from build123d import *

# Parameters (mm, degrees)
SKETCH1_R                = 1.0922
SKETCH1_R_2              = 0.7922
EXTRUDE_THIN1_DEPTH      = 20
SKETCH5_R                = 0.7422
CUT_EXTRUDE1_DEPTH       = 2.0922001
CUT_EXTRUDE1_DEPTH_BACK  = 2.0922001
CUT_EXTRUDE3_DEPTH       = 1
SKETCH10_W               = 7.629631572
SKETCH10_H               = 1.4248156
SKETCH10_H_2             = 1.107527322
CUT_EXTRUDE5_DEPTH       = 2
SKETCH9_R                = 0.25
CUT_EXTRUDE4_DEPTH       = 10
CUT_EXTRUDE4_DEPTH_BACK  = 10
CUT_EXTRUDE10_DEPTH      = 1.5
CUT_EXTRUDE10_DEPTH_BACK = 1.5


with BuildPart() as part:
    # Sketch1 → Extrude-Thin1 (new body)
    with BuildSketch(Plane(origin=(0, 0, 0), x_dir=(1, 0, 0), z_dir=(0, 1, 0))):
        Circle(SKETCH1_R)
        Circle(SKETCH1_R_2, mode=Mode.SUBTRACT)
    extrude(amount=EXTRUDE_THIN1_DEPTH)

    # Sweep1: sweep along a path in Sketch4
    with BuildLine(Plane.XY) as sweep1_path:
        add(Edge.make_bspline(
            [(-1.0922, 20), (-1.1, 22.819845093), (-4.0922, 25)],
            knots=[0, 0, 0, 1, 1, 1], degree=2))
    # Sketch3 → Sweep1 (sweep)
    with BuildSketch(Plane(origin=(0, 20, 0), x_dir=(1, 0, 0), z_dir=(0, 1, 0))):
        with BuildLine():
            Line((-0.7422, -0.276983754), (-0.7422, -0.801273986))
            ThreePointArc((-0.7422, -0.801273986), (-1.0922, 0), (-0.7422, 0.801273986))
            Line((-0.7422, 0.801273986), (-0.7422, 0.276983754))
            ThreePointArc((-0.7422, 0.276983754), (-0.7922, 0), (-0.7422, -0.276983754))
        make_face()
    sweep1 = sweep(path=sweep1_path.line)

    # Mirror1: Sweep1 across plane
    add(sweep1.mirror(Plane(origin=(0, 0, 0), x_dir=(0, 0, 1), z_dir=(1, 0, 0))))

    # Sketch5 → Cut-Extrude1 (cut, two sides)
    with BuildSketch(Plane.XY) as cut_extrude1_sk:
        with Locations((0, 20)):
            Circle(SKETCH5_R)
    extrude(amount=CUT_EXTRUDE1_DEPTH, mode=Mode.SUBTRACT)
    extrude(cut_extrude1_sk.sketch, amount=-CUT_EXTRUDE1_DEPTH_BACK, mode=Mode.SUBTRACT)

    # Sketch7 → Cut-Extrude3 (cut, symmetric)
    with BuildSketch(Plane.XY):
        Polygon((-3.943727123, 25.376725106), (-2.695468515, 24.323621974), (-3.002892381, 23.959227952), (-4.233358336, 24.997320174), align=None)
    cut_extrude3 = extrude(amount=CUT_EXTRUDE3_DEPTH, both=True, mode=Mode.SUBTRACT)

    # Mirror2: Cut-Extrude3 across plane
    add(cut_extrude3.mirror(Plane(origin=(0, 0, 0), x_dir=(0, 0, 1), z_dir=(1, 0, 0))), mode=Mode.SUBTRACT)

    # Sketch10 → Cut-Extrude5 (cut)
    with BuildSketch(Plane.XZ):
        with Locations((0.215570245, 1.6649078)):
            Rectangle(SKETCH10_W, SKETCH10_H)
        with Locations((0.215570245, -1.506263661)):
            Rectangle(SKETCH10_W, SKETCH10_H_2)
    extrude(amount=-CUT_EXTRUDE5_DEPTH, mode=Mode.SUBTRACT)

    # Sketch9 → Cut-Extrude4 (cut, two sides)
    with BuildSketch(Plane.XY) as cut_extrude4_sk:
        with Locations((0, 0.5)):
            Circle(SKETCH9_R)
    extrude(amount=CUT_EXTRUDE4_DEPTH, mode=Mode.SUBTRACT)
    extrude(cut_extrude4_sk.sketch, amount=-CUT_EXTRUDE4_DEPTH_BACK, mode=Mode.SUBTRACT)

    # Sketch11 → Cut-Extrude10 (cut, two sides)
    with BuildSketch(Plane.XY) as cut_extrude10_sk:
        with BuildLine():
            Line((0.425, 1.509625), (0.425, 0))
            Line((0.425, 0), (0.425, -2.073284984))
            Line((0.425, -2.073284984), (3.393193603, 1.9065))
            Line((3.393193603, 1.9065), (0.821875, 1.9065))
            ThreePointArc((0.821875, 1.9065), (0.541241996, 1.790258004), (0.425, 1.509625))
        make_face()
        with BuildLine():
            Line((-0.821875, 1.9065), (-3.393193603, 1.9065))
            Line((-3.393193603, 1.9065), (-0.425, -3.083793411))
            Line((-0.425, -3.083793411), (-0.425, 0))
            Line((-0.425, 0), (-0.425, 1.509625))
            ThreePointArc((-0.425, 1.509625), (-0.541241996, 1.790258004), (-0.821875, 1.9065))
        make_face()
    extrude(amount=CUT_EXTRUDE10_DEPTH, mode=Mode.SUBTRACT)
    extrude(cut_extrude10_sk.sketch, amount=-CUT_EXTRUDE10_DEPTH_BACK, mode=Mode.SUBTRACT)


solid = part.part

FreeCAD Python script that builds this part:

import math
import FreeCAD as App
import Part
import Sketcher

V = App.Vector
Q = App.Units.Quantity

doc = App.newDocument("Part")
body = doc.addObject("PartDesign::Body", "Body")

# Sketch on XZ plane
sketch1 = doc.addObject("Sketcher::SketchObject", "Sketch")
body.addObject(sketch1)
sketch1.AttachmentSupport = (doc.XZ_Plane, [""])
sketch1.MapMode = "FlatFace"
sketch1.addGeometry([
    Part.Circle(V(0, 0, 0), V(0, 0, 1), 1.1),
    Part.Circle(V(0, 0, 0), V(0, 0, 1), 0.8),
], False)
sketch1.addConstraint([
    Sketcher.Constraint("Coincident", 0, 3, -1, 1),
    Sketcher.Constraint("Coincident", 1, 3, -1, 1),
    Sketcher.Constraint("Diameter", 0, Q("2.1844 mm")),
    Sketcher.Constraint("Diameter", 1, Q("1.5844 mm")),
])
pad1 = doc.addObject("PartDesign::Pad", "Pad")
body.addObject(pad1)
pad1.Profile = sketch1
pad1.Length = 20
pad1.Reversed = True

# Sketch on XZ plane
sketch2 = doc.addObject("Sketcher::SketchObject", "Sketch001")
body.addObject(sketch2)
sketch2.AttachmentSupport = (doc.XZ_Plane, [""])
sketch2.MapMode = "FlatFace"
sketch2.AttachmentOffset = App.Placement(V(0, 0, -20), App.Rotation())
sketch2.addGeometry([
    Part.LineSegment(V(-0.7, 0.8, 0), V(-0.7, 0.3, 0)),
    Part.ArcOfCircle(Part.Circle(V(0, 0, 0), V(0, 0, 1), 0.8), math.radians(160), math.radians(200)),
    Part.LineSegment(V(-0.7, -0.3, 0), V(-0.7, -0.8, 0)),
    Part.ArcOfCircle(Part.Circle(V(0, 0, 0), V(0, 0, 1), 1.1), math.radians(133), math.radians(227)),
], False)
sketch2.addConstraint([
    Sketcher.Constraint("Coincident", 0, 2, 1, 1),
    Sketcher.Constraint("Coincident", 1, 2, 2, 1),
    Sketcher.Constraint("Coincident", 2, 2, 3, 2),
    Sketcher.Constraint("Coincident", 3, 1, 0, 1),
    Sketcher.Constraint("Vertical", 0),
    Sketcher.Constraint("Vertical", 2),
    Sketcher.Constraint("Coincident", 1, 3, -1, 1),
    Sketcher.Constraint("Coincident", 3, 3, -1, 1),
    Sketcher.Constraint("Vertical", 0, 2, 1, 2),
    Sketcher.Constraint("Radius", 1, Q("0.7922 mm")),
    Sketcher.Constraint("Radius", 3, Q("1.0922 mm")),
    Sketcher.Constraint("DistanceY", 0, 2, 0, 1, Q("0.52429 mm")),
])

# Sketch on XY plane
sketch3 = doc.addObject("Sketcher::SketchObject", "Sketch002")
body.addObject(sketch3)
sketch3.AttachmentSupport = (doc.XY_Plane, [""])
sketch3.MapMode = "FlatFace"
sketch3.addGeometry(Part.BSplineCurve([V(-1.0922, 20, 0), V(-1.1, 22.819845, 0), V(-4.0922, 25, 0)], [3, 3], [0, 1], False, 2, [1, 1, 1], False), False)
sketch3.addConstraint(Sketcher.Constraint("Block", 0))
doc.recompute()

additivepipe = doc.addObject("PartDesign::AdditivePipe", "AdditivePipe")
body.addObject(additivepipe)
additivepipe.Profile = sketch2
additivepipe.Spine = (sketch3, ["Edge1"])
doc.recompute()

mirrored = doc.addObject("PartDesign::Mirrored", "Mirrored")
body.addObject(mirrored)
mirrored.Originals = [additivepipe]
mirrored.MirrorPlane = (doc.YZ_Plane, [""])
body.Tip = mirrored

# Sketch on XY plane
sketch4 = doc.addObject("Sketcher::SketchObject", "Sketch003")
body.addObject(sketch4)
sketch4.AttachmentSupport = (doc.XY_Plane, [""])
sketch4.MapMode = "FlatFace"
sketch4.addGeometry(Part.Circle(V(0, 20, 0), V(0, 0, 1), 0.7), False)
sketch4.addConstraint([
    Sketcher.Constraint("PointOnObject", 0, 3, -2),
    Sketcher.Constraint("DistanceY", -1, 1, 0, 3, Q("20 mm")),
    Sketcher.Constraint("Diameter", 0, Q("1.4844 mm")),
])
pocket1 = doc.addObject("PartDesign::Pocket", "Pocket")
body.addObject(pocket1)
pocket1.Profile = sketch4
pocket1.Type = "ThroughAll"
pocket1.Midplane = True

# Sketch on XY plane
sketch5 = doc.addObject("Sketcher::SketchObject", "Sketch004")
body.addObject(sketch5)
sketch5.AttachmentSupport = (doc.XY_Plane, [""])
sketch5.MapMode = "FlatFace"
sketch5.addGeometry([
    Part.LineSegment(V(-2.7, 24.32, 0), V(-3.94, 25.38, 0)),
    Part.LineSegment(V(-3.94, 25.38, 0), V(-4.23, 25, 0)),
    Part.LineSegment(V(-4.23, 25, 0), V(-3, 23.96, 0)),
    Part.LineSegment(V(-3, 23.96, 0), V(-2.7, 24.32, 0)),
], False)
sketch5.addConstraint([
    Sketcher.Constraint("Coincident", 0, 2, 1, 1),
    Sketcher.Constraint("Coincident", 1, 2, 2, 1),
    Sketcher.Constraint("Coincident", 2, 2, 3, 1),
    Sketcher.Constraint("Coincident", 3, 2, 0, 1),
    Sketcher.Constraint("Parallel", 0, 2),
    Sketcher.Constraint("Perpendicular", 2, 3),
    Sketcher.Constraint("DistanceY", 3, 2, 1, 2, Q("0.673698 mm")),
    Sketcher.Constraint("Distance", 0, Q("1.633149 mm")),
    Sketcher.Constraint("Distance", 1, Q("0.47732 mm")),
    Sketcher.Constraint("Distance", 2, Q("1.60987 mm")),
    Sketcher.Constraint("DistanceX", 1, 2, -1, 1, Q("4.233358 mm")),
    Sketcher.Constraint("DistanceY", -1, 1, 1, 2, Q("24.99732 mm")),
])
pocket2 = doc.addObject("PartDesign::Pocket", "Pocket001")
body.addObject(pocket2)
pocket2.Profile = sketch5
pocket2.Length = 2
pocket2.Midplane = True
doc.recompute()

mirrored2 = doc.addObject("PartDesign::Mirrored", "Mirrored001")
body.addObject(mirrored2)
mirrored2.Originals = [pocket2]
mirrored2.MirrorPlane = (doc.YZ_Plane, [""])
body.Tip = mirrored2

# Sketch on XZ plane
sketch6 = doc.addObject("Sketcher::SketchObject", "Sketch005")
body.addObject(sketch6)
sketch6.AttachmentSupport = (doc.XZ_Plane, [""])
sketch6.MapMode = "FlatFace"
sketch6.addGeometry([
    Part.LineSegment(V(-3.6, 2.4, 0), V(-3.6, 1, 0)),  # 0
    Part.LineSegment(V(-3.6, 1, 0), V(4, 1, 0)),  # 1
    Part.LineSegment(V(4, 1, 0), V(4, 2.4, 0)),  # 2
    Part.LineSegment(V(4, 2.4, 0), V(-3.6, 2.4, 0)),  # 3
    Part.LineSegment(V(-3.6, -1, 0), V(-3.6, -2.1, 0)),  # 4
    Part.LineSegment(V(-3.6, -2.1, 0), V(4, -2.1, 0)),  # 5
    Part.LineSegment(V(4, -2.1, 0), V(4, -1, 0)),  # 6
    Part.LineSegment(V(4, -1, 0), V(-3.6, -1, 0)),  # 7
], False)
sketch6.addConstraint([
    Sketcher.Constraint("Coincident", 0, 2, 1, 1),
    Sketcher.Constraint("Coincident", 1, 2, 2, 1),
    Sketcher.Constraint("Coincident", 2, 2, 3, 1),
    Sketcher.Constraint("Coincident", 3, 2, 0, 1),
    Sketcher.Constraint("Coincident", 4, 2, 5, 1),
    Sketcher.Constraint("Coincident", 5, 2, 6, 1),
    Sketcher.Constraint("Coincident", 6, 2, 7, 1),
    Sketcher.Constraint("Coincident", 7, 2, 4, 1),
    Sketcher.Constraint("Vertical", 0),
    Sketcher.Constraint("Horizontal", 1),
    Sketcher.Constraint("Vertical", 2),
    Sketcher.Constraint("Horizontal", 3),
    Sketcher.Constraint("Vertical", 4),
    Sketcher.Constraint("Horizontal", 5),
    Sketcher.Constraint("Vertical", 6),
    Sketcher.Constraint("Horizontal", 7),
    Sketcher.Constraint("Symmetric", 1, 2, 6, 2, -1),
    Sketcher.Constraint("Vertical", 3, 2, 4, 2),
    Sketcher.Constraint("DistanceY", 6, 2, 1, 2, Q("1.905 mm")),
    Sketcher.Constraint("DistanceX", 1, 1, 1, 2, Q("7.629632 mm")),
    Sketcher.Constraint("DistanceY", 0, 2, 0, 1, Q("1.424816 mm")),
    Sketcher.Constraint("DistanceY", 4, 2, 4, 1, Q("1.107527 mm")),
    Sketcher.Constraint("DistanceX", 0, 2, -1, 1, Q("3.599246 mm")),
])
pocket3 = doc.addObject("PartDesign::Pocket", "Pocket002")
body.addObject(pocket3)
pocket3.Profile = sketch6
pocket3.Length = 2

# Sketch on XY plane
sketch7 = doc.addObject("Sketcher::SketchObject", "Sketch006")
body.addObject(sketch7)
sketch7.AttachmentSupport = (doc.XY_Plane, [""])
sketch7.MapMode = "FlatFace"
sketch7.addGeometry(Part.Circle(V(0, 0.5, 0), V(0, 0, 1), 0.25), False)
sketch7.addConstraint([
    Sketcher.Constraint("PointOnObject", 0, 3, -2),
    Sketcher.Constraint("Diameter", 0, Q("0.5 mm")),
    Sketcher.Constraint("DistanceY", -1, 1, 0, 3, Q("0.5 mm")),
])
pocket4 = doc.addObject("PartDesign::Pocket", "Pocket003")
body.addObject(pocket4)
pocket4.Profile = sketch7
pocket4.Type = "ThroughAll"
pocket4.Midplane = True

# Sketch on XY plane
sketch8 = doc.addObject("Sketcher::SketchObject", "Sketch007")
body.addObject(sketch8)
sketch8.AttachmentSupport = (doc.XY_Plane, [""])
sketch8.MapMode = "FlatFace"
sketch8.addGeometry([
    Part.LineSegment(V(0.42, 1.51, 0), V(0.42, -2.07, 0)),  # 0
    Part.LineSegment(V(0.42, -2.07, 0), V(3.39, 1.91, 0)),  # 1
    Part.LineSegment(V(3.39, 1.91, 0), V(0.82, 1.91, 0)),  # 2
    Part.ArcOfCircle(Part.Circle(V(0.82, 1.51, 0), V(0, 0, 1), 0.4), math.radians(90), math.radians(180)),  # 3
    Part.LineSegment(V(-0.82, 1.91, 0), V(-3.39, 1.91, 0)),  # 4
    Part.LineSegment(V(-3.39, 1.91, 0), V(-0.42, -3.08, 0)),  # 5
    Part.LineSegment(V(-0.42, -3.08, 0), V(-0.42, 1.51, 0)),  # 6
    Part.ArcOfCircle(Part.Circle(V(-0.82, 1.51, 0), V(0, 0, 1), 0.4), math.radians(0), math.radians(90)),  # 7
], False)
sketch8.addConstraint([
    Sketcher.Constraint("Coincident", 0, 2, 1, 1),
    Sketcher.Constraint("Coincident", 1, 2, 2, 1),
    Sketcher.Constraint("Tangent", 2, 2, 3, 1),
    Sketcher.Constraint("Tangent", 3, 2, 0, 1),
    Sketcher.Constraint("Coincident", 4, 2, 5, 1),
    Sketcher.Constraint("Coincident", 5, 2, 6, 1),
    Sketcher.Constraint("Tangent", 6, 2, 7, 1),
    Sketcher.Constraint("Tangent", 7, 2, 4, 1),
    Sketcher.Constraint("Vertical", 0),
    Sketcher.Constraint("Horizontal", 2),
    Sketcher.Constraint("Horizontal", 4),
    Sketcher.Constraint("Vertical", 6),
    Sketcher.Constraint("Equal", 3, 7),
    Sketcher.Constraint("Symmetric", 3, 3, 7, 3, -2),
    Sketcher.Constraint("Equal", 2, 4),
    Sketcher.Constraint("DistanceX", 5, 2, 0, 2, Q("0.85 mm")),
    Sketcher.Constraint("Radius", 3, Q("0.396875 mm")),
    Sketcher.Constraint("DistanceX", 2, 2, 2, 1, Q("2.571319 mm")),
    Sketcher.Constraint("DistanceY", 0, 2, 0, 1, Q("3.58291 mm")),
    Sketcher.Constraint("DistanceY", 6, 1, 6, 2, Q("4.593418 mm")),
    Sketcher.Constraint("DistanceY", -1, 1, 1, 2, Q("1.9065 mm")),
])
pocket5 = doc.addObject("PartDesign::Pocket", "Pocket004")
body.addObject(pocket5)
pocket5.Profile = sketch8
pocket5.Type = "ThroughAll"
pocket5.Midplane = True

doc.recompute()
